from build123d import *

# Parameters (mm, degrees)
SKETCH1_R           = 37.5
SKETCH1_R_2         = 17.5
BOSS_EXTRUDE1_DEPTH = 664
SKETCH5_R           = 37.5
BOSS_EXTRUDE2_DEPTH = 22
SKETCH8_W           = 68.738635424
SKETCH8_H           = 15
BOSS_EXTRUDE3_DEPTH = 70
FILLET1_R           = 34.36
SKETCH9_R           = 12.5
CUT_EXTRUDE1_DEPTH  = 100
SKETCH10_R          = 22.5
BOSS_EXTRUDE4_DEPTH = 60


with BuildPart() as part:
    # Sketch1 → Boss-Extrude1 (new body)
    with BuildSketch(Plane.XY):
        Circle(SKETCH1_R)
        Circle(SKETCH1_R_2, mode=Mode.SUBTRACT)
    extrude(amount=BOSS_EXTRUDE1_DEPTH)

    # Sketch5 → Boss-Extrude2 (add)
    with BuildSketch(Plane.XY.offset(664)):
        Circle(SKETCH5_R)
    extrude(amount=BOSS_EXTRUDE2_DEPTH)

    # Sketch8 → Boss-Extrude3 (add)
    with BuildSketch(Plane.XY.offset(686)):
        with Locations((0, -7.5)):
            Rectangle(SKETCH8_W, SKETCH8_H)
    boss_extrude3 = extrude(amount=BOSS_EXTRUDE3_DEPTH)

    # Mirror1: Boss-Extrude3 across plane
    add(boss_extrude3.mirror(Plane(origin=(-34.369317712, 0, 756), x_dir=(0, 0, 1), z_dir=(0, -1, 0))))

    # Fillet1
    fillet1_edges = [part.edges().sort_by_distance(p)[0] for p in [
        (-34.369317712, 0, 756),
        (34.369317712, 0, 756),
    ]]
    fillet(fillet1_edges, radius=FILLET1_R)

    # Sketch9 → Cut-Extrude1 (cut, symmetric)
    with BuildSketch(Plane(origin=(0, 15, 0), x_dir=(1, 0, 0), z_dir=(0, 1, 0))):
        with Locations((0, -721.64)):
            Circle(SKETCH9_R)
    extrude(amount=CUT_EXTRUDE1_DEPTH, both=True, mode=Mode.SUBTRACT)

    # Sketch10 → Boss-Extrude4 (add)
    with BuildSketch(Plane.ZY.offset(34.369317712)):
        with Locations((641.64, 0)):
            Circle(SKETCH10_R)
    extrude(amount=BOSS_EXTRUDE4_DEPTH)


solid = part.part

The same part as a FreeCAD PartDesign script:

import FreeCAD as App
import Part
import Sketcher
from FreeCAD import Vector


def edges_at(feature, points):
    """Names of the edges that pass closest to the given points."""
    edges = feature.Shape.Edges
    near = lambda p: min(range(len(edges)), key=lambda i: edges[i].distToShape(Part.Vertex(*p))[0])
    return sorted({f"Edge{near(p) + 1}" for p in points})


def add_polygon(sketch, points):
    """Adds a closed chain of lines whose ends are joined by coincident constraints."""
    first, n = sketch.GeometryCount, len(points)
    for a, b in zip(points, points[1:] + points[:1]):
        sketch.addGeometry(Part.LineSegment(App.Vector(*a, 0), App.Vector(*b, 0)), False)
    for i in range(n):
        sketch.addConstraint(Sketcher.Constraint("Coincident", first + i, 2, first + (i + 1) % n, 1))

doc = App.newDocument("Part")
params = doc.addObject("Spreadsheet::Sheet", "Params")
for row, (alias, value) in enumerate([
    ("sketch1_diameter", "75 mm"),
    ("sketch1_diameter2", "35 mm"),
    ("pad1_length", "664 mm"),
    ("sketch2_diameter", "75 mm"),
    ("pad2_length", "22 mm"),
    ("sketch3_height", "15 mm"),
    ("pad3_length", "70 mm"),
    ("fillet_radius", "34.36 mm"),
    ("sketch4_diameter", "25 mm"),
    ("pocket1_length", "200 mm"),
    ("sketch5_diameter", "45 mm"),
    ("pad4_length", "60 mm"),
], start=1):
    params.set(f"A{row}", alias)
    params.set(f"B{row}", "=" + value)
    params.setAlias(f"B{row}", alias)

body = doc.addObject("PartDesign::Body", "Body")

# Sketch on XY plane
sketch1 = doc.addObject("Sketcher::SketchObject", "Sketch")
body.addObject(sketch1)
sketch1.AttachmentSupport = (doc.XY_Plane, [""])
sketch1.MapMode = "FlatFace"
sketch1.addGeometry([
    Part.Circle(Vector(0, 0, 0), Vector(0, 0, 1), 37.5),
    Part.Circle(Vector(0, 0, 0), Vector(0, 0, 1), 17.5),
], False)
sketch1.addConstraint([
    Sketcher.Constraint("Coincident", 0, 3, -1, 1),
    Sketcher.Constraint("Coincident", 1, 3, -1, 1),
    Sketcher.Constraint("Diameter", 0, 75.0),
    Sketcher.Constraint("Diameter", 1, 35.0),
])
sketch1.setExpression("Constraints[2]", "Params.sketch1_diameter")
sketch1.setExpression("Constraints[3]", "Params.sketch1_diameter2")
pad1 = doc.addObject("PartDesign::Pad", "Pad")
body.addObject(pad1)
pad1.Profile = sketch1
pad1.setExpression("Length", "Params.pad1_length")

# Sketch on XY plane
sketch2 = doc.addObject("Sketcher::SketchObject", "Sketch001")
body.addObject(sketch2)
sketch2.AttachmentSupport = (doc.XY_Plane, [""])
sketch2.MapMode = "FlatFace"
sketch2.AttachmentOffset = App.Placement(Vector(0, 0, 664), App.Rotation())
sketch2.addGeometry(Part.Circle(Vector(0, 0, 0), Vector(0, 0, 1), 37.5), False)
sketch2.addConstraint([
    Sketcher.Constraint("Coincident", 0, 3, -1, 1),
    Sketcher.Constraint("Diameter", 0, 75.0),
])
sketch2.setExpression("Constraints[1]", "Params.sketch2_diameter")
pad2 = doc.addObject("PartDesign::Pad", "Pad001")
body.addObject(pad2)
pad2.Profile = sketch2
pad2.setExpression("Length", "Params.pad2_length")

# Sketch on XY plane
sketch3 = doc.addObject("Sketcher::SketchObject", "Sketch002")
body.addObject(sketch3)
sketch3.AttachmentSupport = (doc.XY_Plane, [""])
sketch3.MapMode = "FlatFace"
sketch3.AttachmentOffset = App.Placement(Vector(0, 0, 686), App.Rotation())
add_polygon(sketch3, [(-34.369318, 0), (-34.369318, -15), (34.369318, -15), (34.369318, 0)])  # lines 0-3
sketch3.addConstraint([
    Sketcher.Constraint("Vertical", 0),
    Sketcher.Constraint("Horizontal", 1),
    Sketcher.Constraint("Vertical", 2),
    Sketcher.Constraint("Horizontal", 3),
    Sketcher.Constraint("Symmetric", 2, 2, 3, 2, -1, 1),
    Sketcher.Constraint("DistanceY", 0, 2, 0, 1, 15.0),
    Sketcher.Constraint("DistanceX", 1, 1, 1, 2, 68.738635),
])
sketch3.setExpression("Constraints[9]", "Params.sketch3_height")
pad3 = doc.addObject("PartDesign::Pad", "Pad002")
body.addObject(pad3)
pad3.Profile = sketch3
pad3.setExpression("Length", "Params.pad3_length")
doc.recompute()

mirrored = doc.addObject("PartDesign::Mirrored", "Mirrored")
body.addObject(mirrored)
mirrored.Originals = [pad3]
mirrored.MirrorPlane = (doc.XZ_Plane, [""])
body.Tip = mirrored
doc.recompute()

fillet = doc.addObject("PartDesign::Fillet", "Fillet")
body.addObject(fillet)
fillet.Base = (mirrored, edges_at(mirrored, [(-34.369, 0, 756), (34.369, 0, 756)]))
fillet.setExpression("Radius", "Params.fillet_radius")

# Sketch on XZ plane
sketch4 = doc.addObject("Sketcher::SketchObject", "Sketch003")
body.addObject(sketch4)
sketch4.AttachmentSupport = (doc.XZ_Plane, [""])
sketch4.MapMode = "FlatFace"
sketch4.AttachmentOffset = App.Placement(Vector(0, 0, -15), App.Rotation())
sketch4.addGeometry(Part.Circle(Vector(0, 721.64, 0), Vector(0, 0, 1), 12.5), False)
sketch4.addConstraint([
    Sketcher.Constraint("PointOnObject", 0, 3, -2),
    Sketcher.Constraint("Diameter", 0, 25.0),
    Sketcher.Constraint("DistanceY", -1, 1, 0, 3, 721.64),
])
sketch4.setExpression("Constraints[1]", "Params.sketch4_diameter")
pocket1 = doc.addObject("PartDesign::Pocket", "Pocket")
body.addObject(pocket1)
pocket1.Profile = sketch4
pocket1.setExpression("Length", "Params.pocket1_length")
pocket1.Midplane = True

# Sketch on YZ plane
sketch5 = doc.addObject("Sketcher::SketchObject", "Sketch004")
body.addObject(sketch5)
sketch5.AttachmentSupport = (doc.YZ_Plane, [""])
sketch5.MapMode = "FlatFace"
sketch5.AttachmentOffset = App.Placement(Vector(0, 0, -34.369318), App.Rotation())
sketch5.addGeometry(Part.Circle(Vector(0, 641.64, 0), Vector(0, 0, 1), 22.5), False)
sketch5.addConstraint([
    Sketcher.Constraint("PointOnObject", 0, 3, -2),
    Sketcher.Constraint("Diameter", 0, 45.0),
    Sketcher.Constraint("DistanceY", -1, 1, 0, 3, 641.64),
])
sketch5.setExpression("Constraints[1]", "Params.sketch5_diameter")
pad4 = doc.addObject("PartDesign::Pad", "Pad003")
body.addObject(pad4)
pad4.Profile = sketch5
pad4.setExpression("Length", "Params.pad4_length")
pad4.Reversed = True

doc.recompute()
